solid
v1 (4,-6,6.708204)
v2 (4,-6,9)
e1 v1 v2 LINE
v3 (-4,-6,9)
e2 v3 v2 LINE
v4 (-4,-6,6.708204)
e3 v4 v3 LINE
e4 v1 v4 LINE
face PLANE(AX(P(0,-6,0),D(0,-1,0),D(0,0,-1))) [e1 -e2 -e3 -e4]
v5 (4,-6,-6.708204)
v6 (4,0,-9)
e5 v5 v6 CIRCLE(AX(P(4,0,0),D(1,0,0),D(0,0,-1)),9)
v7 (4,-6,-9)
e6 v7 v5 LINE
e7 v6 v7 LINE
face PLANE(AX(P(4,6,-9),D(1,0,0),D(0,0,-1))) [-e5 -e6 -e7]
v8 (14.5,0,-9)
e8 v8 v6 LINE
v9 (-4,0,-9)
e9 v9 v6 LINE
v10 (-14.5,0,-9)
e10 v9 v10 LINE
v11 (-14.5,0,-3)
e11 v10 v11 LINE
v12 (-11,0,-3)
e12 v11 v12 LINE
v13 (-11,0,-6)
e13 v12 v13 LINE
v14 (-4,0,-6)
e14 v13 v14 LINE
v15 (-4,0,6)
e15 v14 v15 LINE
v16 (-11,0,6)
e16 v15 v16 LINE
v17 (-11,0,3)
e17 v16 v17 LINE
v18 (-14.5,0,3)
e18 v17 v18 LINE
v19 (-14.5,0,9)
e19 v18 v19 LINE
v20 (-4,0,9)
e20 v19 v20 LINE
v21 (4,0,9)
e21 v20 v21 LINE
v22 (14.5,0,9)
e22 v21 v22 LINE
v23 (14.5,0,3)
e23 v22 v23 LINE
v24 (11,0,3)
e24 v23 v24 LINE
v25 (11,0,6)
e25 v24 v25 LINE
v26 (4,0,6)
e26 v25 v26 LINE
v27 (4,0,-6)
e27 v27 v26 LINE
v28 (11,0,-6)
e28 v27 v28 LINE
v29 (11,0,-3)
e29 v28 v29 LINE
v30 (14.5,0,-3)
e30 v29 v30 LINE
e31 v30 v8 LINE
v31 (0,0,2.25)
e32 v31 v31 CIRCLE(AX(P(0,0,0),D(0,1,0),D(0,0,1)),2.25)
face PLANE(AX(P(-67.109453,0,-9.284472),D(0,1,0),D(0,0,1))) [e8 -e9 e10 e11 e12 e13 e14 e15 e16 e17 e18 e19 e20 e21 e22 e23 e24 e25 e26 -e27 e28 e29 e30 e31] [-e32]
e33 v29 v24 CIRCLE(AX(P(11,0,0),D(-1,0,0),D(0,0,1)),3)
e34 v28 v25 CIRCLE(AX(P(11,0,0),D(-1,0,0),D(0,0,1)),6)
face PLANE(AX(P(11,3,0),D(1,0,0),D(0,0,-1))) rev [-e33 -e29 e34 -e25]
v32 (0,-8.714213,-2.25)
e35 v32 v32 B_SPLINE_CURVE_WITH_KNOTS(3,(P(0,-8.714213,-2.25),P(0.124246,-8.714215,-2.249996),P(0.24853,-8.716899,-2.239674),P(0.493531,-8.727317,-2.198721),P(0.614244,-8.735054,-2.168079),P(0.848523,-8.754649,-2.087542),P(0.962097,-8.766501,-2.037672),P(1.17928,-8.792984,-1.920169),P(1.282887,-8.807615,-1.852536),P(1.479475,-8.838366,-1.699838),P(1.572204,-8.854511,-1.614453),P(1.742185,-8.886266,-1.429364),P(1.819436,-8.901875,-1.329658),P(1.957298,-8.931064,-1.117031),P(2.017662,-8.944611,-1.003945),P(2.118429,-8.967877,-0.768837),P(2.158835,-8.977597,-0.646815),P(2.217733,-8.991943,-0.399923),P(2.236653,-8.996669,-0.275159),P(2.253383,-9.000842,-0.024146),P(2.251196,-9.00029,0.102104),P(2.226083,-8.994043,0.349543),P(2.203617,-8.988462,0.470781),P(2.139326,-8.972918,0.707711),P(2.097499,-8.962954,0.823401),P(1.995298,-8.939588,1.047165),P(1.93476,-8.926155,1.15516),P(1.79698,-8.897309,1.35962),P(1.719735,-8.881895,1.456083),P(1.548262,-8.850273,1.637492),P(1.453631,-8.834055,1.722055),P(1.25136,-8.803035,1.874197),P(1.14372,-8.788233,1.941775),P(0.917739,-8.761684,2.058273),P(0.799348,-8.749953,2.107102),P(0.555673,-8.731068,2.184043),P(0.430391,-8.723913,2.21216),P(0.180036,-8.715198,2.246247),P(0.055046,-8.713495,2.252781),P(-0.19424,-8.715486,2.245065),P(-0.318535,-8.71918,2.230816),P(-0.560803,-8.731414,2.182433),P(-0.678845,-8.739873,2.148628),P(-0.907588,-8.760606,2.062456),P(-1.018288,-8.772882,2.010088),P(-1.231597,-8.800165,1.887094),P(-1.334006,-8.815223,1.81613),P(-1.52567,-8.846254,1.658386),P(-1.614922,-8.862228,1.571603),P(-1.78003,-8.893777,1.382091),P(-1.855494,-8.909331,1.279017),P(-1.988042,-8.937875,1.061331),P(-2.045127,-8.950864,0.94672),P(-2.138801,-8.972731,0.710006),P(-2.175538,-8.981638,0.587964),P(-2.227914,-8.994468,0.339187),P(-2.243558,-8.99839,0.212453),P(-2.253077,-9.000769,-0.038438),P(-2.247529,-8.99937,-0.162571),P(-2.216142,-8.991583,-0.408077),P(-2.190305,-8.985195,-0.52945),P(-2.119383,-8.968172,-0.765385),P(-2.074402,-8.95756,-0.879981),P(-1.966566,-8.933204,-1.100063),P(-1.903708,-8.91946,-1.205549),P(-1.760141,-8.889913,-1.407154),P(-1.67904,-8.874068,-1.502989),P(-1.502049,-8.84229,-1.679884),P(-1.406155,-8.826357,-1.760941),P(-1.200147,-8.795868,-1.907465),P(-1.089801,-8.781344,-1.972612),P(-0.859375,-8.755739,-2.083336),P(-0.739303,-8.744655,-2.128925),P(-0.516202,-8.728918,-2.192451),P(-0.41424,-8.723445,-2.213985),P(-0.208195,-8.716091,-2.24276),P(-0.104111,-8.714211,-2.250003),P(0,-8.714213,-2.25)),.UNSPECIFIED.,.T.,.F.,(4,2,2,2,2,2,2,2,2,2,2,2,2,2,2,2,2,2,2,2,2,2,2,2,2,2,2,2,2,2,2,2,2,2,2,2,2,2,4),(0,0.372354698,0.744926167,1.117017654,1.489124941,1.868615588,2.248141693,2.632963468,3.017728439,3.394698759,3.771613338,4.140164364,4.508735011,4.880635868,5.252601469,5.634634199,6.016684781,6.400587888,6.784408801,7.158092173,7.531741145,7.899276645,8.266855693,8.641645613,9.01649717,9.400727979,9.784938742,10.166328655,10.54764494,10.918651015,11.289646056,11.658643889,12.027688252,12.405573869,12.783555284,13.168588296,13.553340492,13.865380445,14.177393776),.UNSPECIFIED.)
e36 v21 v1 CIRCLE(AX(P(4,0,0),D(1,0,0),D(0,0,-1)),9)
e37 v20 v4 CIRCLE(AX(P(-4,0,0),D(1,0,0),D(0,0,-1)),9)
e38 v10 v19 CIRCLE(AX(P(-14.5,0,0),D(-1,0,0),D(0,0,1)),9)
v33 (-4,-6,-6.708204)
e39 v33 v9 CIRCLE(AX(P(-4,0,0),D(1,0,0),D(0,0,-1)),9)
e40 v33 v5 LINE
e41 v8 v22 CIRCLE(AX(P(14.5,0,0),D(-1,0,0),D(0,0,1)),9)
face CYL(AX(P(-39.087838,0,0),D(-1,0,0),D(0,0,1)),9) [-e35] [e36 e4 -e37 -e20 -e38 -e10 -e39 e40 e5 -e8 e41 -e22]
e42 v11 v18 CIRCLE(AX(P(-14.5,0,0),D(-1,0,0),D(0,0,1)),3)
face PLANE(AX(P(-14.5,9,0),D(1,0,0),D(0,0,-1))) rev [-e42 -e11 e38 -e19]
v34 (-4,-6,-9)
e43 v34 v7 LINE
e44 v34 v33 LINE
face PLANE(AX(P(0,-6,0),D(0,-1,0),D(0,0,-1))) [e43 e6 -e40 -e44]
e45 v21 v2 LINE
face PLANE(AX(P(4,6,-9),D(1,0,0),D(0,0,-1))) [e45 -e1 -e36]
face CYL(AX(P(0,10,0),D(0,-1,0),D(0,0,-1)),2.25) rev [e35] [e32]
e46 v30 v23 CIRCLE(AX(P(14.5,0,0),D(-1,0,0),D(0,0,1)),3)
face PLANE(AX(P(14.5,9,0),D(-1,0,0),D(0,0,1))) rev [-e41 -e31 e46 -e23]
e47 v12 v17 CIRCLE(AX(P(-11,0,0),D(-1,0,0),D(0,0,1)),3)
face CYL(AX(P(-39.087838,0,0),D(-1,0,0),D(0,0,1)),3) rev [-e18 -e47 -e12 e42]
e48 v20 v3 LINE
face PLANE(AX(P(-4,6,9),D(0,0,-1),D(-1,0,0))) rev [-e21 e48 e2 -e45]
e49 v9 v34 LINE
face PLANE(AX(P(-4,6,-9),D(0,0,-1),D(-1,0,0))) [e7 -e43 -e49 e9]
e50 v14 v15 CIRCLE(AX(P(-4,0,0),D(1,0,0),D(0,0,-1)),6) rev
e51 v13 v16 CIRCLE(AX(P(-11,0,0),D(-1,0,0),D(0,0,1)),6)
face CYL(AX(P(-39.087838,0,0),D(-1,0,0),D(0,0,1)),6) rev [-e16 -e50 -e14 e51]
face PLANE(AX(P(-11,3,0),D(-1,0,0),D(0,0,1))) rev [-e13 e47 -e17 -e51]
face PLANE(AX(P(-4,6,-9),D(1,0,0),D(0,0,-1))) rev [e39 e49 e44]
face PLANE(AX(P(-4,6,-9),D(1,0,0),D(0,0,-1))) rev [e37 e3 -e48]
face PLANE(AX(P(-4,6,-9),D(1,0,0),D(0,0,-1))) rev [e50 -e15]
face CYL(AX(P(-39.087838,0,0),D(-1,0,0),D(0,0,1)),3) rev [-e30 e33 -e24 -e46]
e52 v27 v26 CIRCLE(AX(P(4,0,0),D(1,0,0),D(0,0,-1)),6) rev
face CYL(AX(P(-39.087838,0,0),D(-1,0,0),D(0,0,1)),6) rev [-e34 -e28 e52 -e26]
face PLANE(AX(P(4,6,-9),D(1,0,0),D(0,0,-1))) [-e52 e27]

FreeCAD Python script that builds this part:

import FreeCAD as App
import Part
import Sketcher

V = App.Vector
Q = App.Units.Quantity


def add_polygon(sketch, points):
    """Adds a closed chain of lines whose ends are joined by coincident constraints."""
    first, n = sketch.GeometryCount, len(points)
    for a, b in zip(points, points[1:] + points[:1]):
        sketch.addGeometry(Part.LineSegment(App.Vector(*a, 0), App.Vector(*b, 0)), False)
    for i in range(n):
        sketch.addConstraint(Sketcher.Constraint("Coincident", first + i, 2, first + (i + 1) % n, 1))

doc = App.newDocument("Part")
body = doc.addObject("PartDesign::Body", "Body")

sketch1 = body.newObject("Sketcher::SketchObject", "Sketch")
sketch1.AttachmentSupport = (doc.getObject("XY_Plane"), [""])
sketch1.MapMode = "FlatFace"
add_polygon(sketch1, [(14.5, 9), (-14.5, 9), (-14.5, 3), (-11, 3), (-11, 6), (11, 6), (11, 3), (14.5, 3)])
sketch1.addConstraint([
    Sketcher.Constraint("Horizontal", 0),
    Sketcher.Constraint("Vertical", 1),
    Sketcher.Constraint("Horizontal", 2),
    Sketcher.Constraint("Vertical", 3),
    Sketcher.Constraint("Horizontal", 4),
    Sketcher.Constraint("Vertical", 5),
    Sketcher.Constraint("Horizontal", 6),
    Sketcher.Constraint("Vertical", 7),
    Sketcher.Constraint("Symmetric", 2, 2, 5, 2, -2),
    Sketcher.Constraint("Equal", 2, 6),
    Sketcher.Constraint("DistanceX", 0, 2, 0, 1, Q("29 mm")),
    Sketcher.Constraint("DistanceX", 4, 1, 4, 2, Q("22 mm")),
    Sketcher.Constraint("DistanceY", 1, 2, 1, 1, Q("6 mm")),
    Sketcher.Constraint("DistanceY", 3, 1, 3, 2, Q("3 mm")),
    Sketcher.Constraint("DistanceY", -1, 1, 0, 2, Q("9 mm")),
])
revolution = body.newObject("PartDesign::Revolution", "Revolution")
revolution.Profile = sketch1
revolution.ReferenceAxis = (sketch1, ["H_Axis"])
revolution.Angle = 360

sketch2 = body.newObject("Sketcher::SketchObject", "Sketch001")
sketch2.AttachmentSupport = (doc.getObject("XZ_Plane"), [""])
sketch2.MapMode = "FlatFace"
sketch2.addGeometry(Part.Circle(V(0, 0, 0), V(0, 0, 1), 2.2), False)
sketch2.addConstraint([
    Sketcher.Constraint("Coincident", 0, 3, -1, 1),
    Sketcher.Constraint("Diameter", 0, Q("4.5 mm")),
])
pocket1 = body.newObject("PartDesign::Pocket", "Pocket")
pocket1.Profile = sketch2
pocket1.Type = "ThroughAll"
pocket1.Midplane = True

sketch3 = body.newObject("Sketcher::SketchObject", "Sketch002")
sketch3.AttachmentSupport = (doc.getObject("XZ_Plane"), [""])
sketch3.MapMode = "FlatFace"
add_polygon(sketch3, [(-4, -9), (-4, 9), (4, 9), (4, -9)])
sketch3.addGeometry(Part.Circle(V(0, 0, 0), V(0, 0, 1), 2.2), False)
sketch3.addConstraint([
    Sketcher.Constraint("Vertical", 0),
    Sketcher.Constraint("Horizontal", 1),
    Sketcher.Constraint("Vertical", 2),
    Sketcher.Constraint("Horizontal", 3),
    Sketcher.Constraint("Coincident", 4, 3, -1, 1),
    Sketcher.Constraint("Symmetric", 0, 2, 2, 2, -1, 1),
    Sketcher.Constraint("Diameter", 4, Q("4.5 mm")),
    Sketcher.Constraint("DistanceX", 1, 1, 1, 2, Q("8 mm")),
    Sketcher.Constraint("DistanceY", 0, 1, 0, 2, Q("18 mm")),
])
pad1 = body.newObject("PartDesign::Pad", "Pad")
pad1.Profile = sketch3
pad1.Length = 12
pad1.Midplane = True

sketch4 = body.newObject("Sketcher::SketchObject", "Sketch003")
sketch4.AttachmentSupport = (doc.getObject("YZ_Plane"), [""])
sketch4.MapMode = "FlatFace"
sketch4.AttachmentOffset = App.Placement(V(0, 0, -14.5), App.Rotation())
add_polygon(sketch4, [(0, -62), (0, 63), (105, 63), (105, -62)])
sketch4.addConstraint([
    Sketcher.Constraint("Vertical", 0),
    Sketcher.Constraint("Horizontal", 1),
    Sketcher.Constraint("Vertical", 2),
    Sketcher.Constraint("Horizontal", 3),
    Sketcher.Constraint("PointOnObject", 0, 2, -2),
    Sketcher.Constraint("DistanceX", 1, 1, 1, 2, Q("105.402177 mm")),
    Sketcher.Constraint("DistanceY", 0, 1, 0, 2, Q("125.047582 mm")),
    Sketcher.Constraint("DistanceY", -1, 1, 0, 2, Q("63.062021 mm")),
])
pocket2 = body.newObject("PartDesign::Pocket", "Pocket001")
pocket2.Profile = sketch4
pocket2.Type = "ThroughAll"
pocket2.Midplane = True

doc.recompute()
